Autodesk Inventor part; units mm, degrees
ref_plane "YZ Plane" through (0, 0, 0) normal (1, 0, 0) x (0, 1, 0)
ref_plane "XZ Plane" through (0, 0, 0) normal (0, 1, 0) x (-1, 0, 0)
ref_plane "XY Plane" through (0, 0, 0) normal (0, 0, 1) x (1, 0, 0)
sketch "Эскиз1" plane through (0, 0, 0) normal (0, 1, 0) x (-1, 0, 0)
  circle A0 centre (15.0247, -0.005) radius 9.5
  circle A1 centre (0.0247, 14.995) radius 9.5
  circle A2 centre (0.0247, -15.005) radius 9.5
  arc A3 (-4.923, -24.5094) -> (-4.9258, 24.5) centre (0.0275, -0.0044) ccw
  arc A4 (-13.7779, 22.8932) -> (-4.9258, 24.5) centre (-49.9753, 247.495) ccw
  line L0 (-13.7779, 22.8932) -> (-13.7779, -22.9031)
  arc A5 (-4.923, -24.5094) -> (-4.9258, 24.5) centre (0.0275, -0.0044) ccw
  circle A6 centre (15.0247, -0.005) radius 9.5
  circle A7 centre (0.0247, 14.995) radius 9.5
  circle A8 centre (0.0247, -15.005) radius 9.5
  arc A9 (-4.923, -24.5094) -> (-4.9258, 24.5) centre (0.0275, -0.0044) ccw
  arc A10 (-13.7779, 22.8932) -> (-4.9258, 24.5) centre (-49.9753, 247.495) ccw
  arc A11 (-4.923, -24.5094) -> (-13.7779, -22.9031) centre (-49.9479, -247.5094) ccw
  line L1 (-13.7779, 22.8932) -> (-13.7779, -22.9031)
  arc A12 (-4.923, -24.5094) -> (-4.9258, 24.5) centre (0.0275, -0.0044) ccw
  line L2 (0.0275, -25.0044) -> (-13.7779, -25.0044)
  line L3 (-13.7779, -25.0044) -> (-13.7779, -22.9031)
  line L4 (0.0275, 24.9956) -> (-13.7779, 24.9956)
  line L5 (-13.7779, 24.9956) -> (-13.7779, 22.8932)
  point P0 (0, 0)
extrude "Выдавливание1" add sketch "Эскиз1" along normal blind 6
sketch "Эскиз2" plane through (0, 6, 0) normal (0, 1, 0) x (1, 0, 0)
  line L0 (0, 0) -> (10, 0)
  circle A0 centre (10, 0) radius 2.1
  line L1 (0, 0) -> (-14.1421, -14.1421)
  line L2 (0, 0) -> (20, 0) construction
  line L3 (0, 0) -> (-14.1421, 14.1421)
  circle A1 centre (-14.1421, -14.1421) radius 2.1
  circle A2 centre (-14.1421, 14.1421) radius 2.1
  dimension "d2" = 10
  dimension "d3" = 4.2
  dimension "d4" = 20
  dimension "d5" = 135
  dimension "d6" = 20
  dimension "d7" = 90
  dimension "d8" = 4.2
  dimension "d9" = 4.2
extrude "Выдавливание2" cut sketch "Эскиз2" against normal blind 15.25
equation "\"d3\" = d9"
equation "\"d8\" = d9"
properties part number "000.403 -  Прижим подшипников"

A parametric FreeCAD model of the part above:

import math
import FreeCAD as App
import Part
import Sketcher
from FreeCAD import Vector

doc = App.newDocument("Part")
body = doc.addObject("PartDesign::Body", "Body")

# Sketch on XZ plane
sketch1 = body.newObject("Sketcher::SketchObject", "Sketch")
sketch1.AttachmentSupport = (doc.getObject("XZ_Plane"), [""])
sketch1.MapMode = "FlatFace"
sketch1.addGeometry(Part.LineSegment(Vector(14, -25, 0), Vector(0, -25, 0)), False)
sketch1.addGeometry(Part.ArcOfCircle(Part.Circle(Vector(0, 0, 0), Vector(0, 0, 1), 25), math.radians(90), math.radians(270)), False)
sketch1.addGeometry(Part.LineSegment(Vector(0, 25, 0), Vector(14, 25, 0)), False)
sketch1.addGeometry(Part.LineSegment(Vector(14, 25, 0), Vector(14, -25, 0)), False)
sketch1.addGeometry(Part.Circle(Vector(0, -15, 0), Vector(0, 0, 1), 10), False)
sketch1.addGeometry(Part.Circle(Vector(-15, 0, 0), Vector(0, 0, 1), 10), False)
sketch1.addGeometry(Part.Circle(Vector(0, 15, 0), Vector(0, 0, 1), 10), False)
sketch1.addConstraint(Sketcher.Constraint("Tangent", 0, 2, 1, 2))
sketch1.addConstraint(Sketcher.Constraint("Tangent", 1, 1, 2, 1))
sketch1.addConstraint(Sketcher.Constraint("Coincident", 2, 2, 3, 1))
sketch1.addConstraint(Sketcher.Constraint("Coincident", 3, 2, 0, 1))
sketch1.addConstraint(Sketcher.Constraint("Horizontal", 0))
sketch1.addConstraint(Sketcher.Constraint("Horizontal", 2))
sketch1.addConstraint(Sketcher.Constraint("Vertical", 3))
sketch1.addConstraint(Sketcher.Constraint("Equal", 4, 5))
sketch1.addConstraint(Sketcher.Constraint("Equal", 5, 6))
sketch1.addConstraint(Sketcher.Constraint("Vertical", 4, 3, 6, 3))
sketch1.addConstraint(Sketcher.Constraint("Diameter", 4, 19.0))
sketch1.addConstraint(Sketcher.Constraint("Radius", 1, 25.0))
sketch1.addConstraint(Sketcher.Constraint("DistanceX", 5, 3, 4, 3, 15.0))
sketch1.addConstraint(Sketcher.Constraint("DistanceY", 4, 3, 5, 3, 15.0))
sketch1.addConstraint(Sketcher.Constraint("DistanceY", 5, 3, 6, 3, 15.0))
sketch1.addConstraint(Sketcher.Constraint("DistanceX", 0, 2, 0, 1, 13.8054))
sketch1.addConstraint(Sketcher.Constraint("DistanceY", 4, 3, -1, 1, 15.005))
sketch1.addConstraint(Sketcher.Constraint("DistanceX", -1, 1, 2, 2, 13.778))
sketch1.addConstraint(Sketcher.Constraint("DistanceY", 1, 3, -1, 1, 0.0044))
sketch1.addConstraint(Sketcher.Constraint("DistanceX", 4, 3, -1, 1, 0.0247))
pad1 = body.newObject("PartDesign::Pad", "Pad")
pad1.Profile = sketch1
pad1.Length = 6
pad1.Reversed = True

# Sketch on XZ plane
sketch2 = body.newObject("Sketcher::SketchObject", "Sketch001")
sketch2.AttachmentSupport = (doc.getObject("XZ_Plane"), [""])
sketch2.MapMode = "FlatFace"
sketch2.AttachmentOffset = App.Placement(Vector(0, 0, -6), App.Rotation())
sketch2.addGeometry(Part.Circle(Vector(10, 0, 0), Vector(0, 0, 1), 2.1), False)
sketch2.addGeometry(Part.Circle(Vector(-14.1, 14.1, 0), Vector(0, 0, 1), 2.1), False)
sketch2.addGeometry(Part.Circle(Vector(-14.1, -14.1, 0), Vector(0, 0, 1), 2.1), False)
sketch2.addConstraint(Sketcher.Constraint("Equal", 0, 1))
sketch2.addConstraint(Sketcher.Constraint("Equal", 1, 2))
sketch2.addConstraint(Sketcher.Constraint("Symmetric", 1, 3, 2, 3, -1))
sketch2.addConstraint(Sketcher.Constraint("PointOnObject", 0, 3, -1))
sketch2.addConstraint(Sketcher.Constraint("Diameter", 0, 4.2))
sketch2.addConstraint(Sketcher.Constraint("DistanceX", -1, 1, 0, 3, 10.0))
sketch2.addConstraint(Sketcher.Constraint("DistanceX", 1, 3, -1, 1, 14.142))
sketch2.addConstraint(Sketcher.Constraint("DistanceY", -1, 1, 1, 3, 14.142))
pocket1 = body.newObject("PartDesign::Pocket", "Pocket")
pocket1.Profile = sketch2
pocket1.Length = 15.25
pocket1.Reversed = True

doc.recompute()
